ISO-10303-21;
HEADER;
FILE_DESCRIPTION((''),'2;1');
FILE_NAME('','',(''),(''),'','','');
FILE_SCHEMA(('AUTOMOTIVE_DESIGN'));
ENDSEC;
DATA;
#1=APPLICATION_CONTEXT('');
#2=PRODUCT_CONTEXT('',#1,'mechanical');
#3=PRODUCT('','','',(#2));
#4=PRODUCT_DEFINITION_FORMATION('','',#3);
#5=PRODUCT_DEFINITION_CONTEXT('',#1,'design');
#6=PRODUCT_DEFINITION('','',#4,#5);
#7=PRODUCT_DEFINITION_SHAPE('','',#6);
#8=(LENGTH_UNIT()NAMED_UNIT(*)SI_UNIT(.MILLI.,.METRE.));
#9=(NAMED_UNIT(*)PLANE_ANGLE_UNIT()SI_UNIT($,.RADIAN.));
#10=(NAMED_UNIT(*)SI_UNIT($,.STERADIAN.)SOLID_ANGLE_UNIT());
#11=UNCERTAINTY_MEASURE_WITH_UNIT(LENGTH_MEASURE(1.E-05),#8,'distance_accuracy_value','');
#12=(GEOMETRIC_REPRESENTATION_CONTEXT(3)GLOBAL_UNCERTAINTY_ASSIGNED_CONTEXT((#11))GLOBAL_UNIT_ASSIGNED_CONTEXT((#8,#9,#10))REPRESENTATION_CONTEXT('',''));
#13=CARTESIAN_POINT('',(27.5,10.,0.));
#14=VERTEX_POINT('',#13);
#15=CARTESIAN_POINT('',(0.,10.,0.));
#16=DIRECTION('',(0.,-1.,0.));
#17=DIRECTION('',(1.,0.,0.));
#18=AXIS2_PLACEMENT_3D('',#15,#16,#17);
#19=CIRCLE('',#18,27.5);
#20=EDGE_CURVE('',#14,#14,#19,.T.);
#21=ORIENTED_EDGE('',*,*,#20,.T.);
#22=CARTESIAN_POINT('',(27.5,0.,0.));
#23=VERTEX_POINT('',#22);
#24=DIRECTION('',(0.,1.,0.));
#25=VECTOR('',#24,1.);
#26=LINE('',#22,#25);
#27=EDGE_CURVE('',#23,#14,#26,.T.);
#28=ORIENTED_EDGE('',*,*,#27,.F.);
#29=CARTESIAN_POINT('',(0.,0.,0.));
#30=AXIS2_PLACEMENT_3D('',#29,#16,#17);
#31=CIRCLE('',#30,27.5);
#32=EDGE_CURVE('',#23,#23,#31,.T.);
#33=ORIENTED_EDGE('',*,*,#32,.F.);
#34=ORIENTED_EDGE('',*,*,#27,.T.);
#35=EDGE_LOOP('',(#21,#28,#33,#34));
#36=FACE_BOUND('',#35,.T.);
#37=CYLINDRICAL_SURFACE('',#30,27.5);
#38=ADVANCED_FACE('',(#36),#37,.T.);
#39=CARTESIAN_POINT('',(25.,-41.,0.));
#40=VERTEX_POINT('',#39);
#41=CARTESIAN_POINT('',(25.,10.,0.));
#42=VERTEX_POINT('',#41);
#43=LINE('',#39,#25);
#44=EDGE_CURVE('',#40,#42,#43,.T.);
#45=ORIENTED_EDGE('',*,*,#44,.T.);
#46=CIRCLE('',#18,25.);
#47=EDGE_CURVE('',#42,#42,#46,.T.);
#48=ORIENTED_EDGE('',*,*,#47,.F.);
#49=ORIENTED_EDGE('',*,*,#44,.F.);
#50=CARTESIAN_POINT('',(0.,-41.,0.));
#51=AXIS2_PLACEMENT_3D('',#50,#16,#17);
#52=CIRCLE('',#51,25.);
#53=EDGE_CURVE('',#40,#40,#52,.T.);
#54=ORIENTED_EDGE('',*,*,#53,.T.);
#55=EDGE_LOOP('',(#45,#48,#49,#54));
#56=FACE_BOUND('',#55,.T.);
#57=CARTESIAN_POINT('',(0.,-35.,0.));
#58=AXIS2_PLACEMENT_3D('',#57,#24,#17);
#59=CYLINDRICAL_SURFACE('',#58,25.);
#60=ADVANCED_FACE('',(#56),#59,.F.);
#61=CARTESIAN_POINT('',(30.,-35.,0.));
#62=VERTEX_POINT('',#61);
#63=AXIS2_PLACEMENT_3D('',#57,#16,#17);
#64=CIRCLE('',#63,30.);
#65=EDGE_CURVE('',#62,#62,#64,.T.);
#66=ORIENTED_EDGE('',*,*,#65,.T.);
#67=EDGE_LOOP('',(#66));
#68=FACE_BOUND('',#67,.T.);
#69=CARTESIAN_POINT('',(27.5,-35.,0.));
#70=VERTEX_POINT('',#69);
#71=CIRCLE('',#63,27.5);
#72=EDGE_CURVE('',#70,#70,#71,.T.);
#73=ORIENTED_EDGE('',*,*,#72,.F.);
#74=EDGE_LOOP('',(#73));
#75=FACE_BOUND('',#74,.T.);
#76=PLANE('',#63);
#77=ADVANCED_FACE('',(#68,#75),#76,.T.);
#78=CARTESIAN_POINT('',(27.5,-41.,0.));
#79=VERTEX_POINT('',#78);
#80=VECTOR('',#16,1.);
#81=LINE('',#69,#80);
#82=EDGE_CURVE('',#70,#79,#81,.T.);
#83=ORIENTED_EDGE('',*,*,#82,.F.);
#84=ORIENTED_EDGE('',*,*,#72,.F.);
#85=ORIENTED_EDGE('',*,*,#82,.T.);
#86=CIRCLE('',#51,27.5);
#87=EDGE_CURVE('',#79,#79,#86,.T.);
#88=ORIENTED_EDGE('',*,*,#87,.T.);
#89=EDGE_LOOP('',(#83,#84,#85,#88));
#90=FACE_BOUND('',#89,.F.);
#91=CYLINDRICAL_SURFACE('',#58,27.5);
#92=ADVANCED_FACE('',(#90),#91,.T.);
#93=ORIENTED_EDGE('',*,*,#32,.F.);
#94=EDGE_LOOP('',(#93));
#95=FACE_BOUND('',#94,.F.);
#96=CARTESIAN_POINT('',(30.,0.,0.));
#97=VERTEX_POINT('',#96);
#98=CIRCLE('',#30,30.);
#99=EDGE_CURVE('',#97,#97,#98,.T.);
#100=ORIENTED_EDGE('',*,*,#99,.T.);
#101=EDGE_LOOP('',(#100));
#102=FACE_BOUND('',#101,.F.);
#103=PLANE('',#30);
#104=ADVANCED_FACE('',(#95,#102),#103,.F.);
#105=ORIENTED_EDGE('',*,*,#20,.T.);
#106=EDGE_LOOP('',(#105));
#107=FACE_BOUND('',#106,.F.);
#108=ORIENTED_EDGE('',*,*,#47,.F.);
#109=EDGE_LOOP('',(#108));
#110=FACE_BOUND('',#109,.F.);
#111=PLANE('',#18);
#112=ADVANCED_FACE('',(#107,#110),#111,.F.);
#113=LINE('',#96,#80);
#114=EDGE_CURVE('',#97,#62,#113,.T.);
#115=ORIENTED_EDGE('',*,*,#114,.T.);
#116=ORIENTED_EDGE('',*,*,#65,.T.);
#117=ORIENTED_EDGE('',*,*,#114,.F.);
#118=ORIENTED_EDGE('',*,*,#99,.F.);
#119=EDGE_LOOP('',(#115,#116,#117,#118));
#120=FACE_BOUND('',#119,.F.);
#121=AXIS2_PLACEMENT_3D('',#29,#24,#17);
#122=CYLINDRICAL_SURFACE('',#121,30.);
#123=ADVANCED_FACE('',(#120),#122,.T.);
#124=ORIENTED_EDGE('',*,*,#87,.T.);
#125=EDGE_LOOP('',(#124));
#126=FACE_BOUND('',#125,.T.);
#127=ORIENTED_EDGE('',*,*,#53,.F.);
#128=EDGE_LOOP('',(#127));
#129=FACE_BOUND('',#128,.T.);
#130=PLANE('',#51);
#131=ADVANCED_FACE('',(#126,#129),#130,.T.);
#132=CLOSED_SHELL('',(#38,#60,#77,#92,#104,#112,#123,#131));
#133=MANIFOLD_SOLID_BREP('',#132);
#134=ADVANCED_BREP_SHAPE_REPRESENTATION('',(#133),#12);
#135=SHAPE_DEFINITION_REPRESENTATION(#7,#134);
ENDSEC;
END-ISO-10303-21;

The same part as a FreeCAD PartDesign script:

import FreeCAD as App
import Part
import Sketcher

V = App.Vector
Q = App.Units.Quantity

doc = App.newDocument("Part")
body = doc.addObject("PartDesign::Body", "Body")

sketch1 = doc.addObject("Sketcher::SketchObject", "Sketch")
body.addObject(sketch1)
sketch1.AttachmentSupport = (doc.XZ_Plane, [""])
sketch1.MapMode = "FlatFace"
sketch1.addGeometry([
    Part.Circle(V(0, 0, 0), V(0, 0, 1), 30),
    Part.Circle(V(0, 0, 0), V(0, 0, 1), 25),
], False)
sketch1.addConstraint([
    Sketcher.Constraint("Coincident", 0, 3, -1, 1),
    Sketcher.Constraint("Coincident", 1, 3, -1, 1),
    Sketcher.Constraint("Diameter", 0, Q("60 mm")),
    Sketcher.Constraint("Diameter", 1, Q("50 mm")),
])
pad1 = doc.addObject("PartDesign::Pad", "Pad")
body.addObject(pad1)
pad1.Profile = sketch1
pad1.Length = 35

sketch2 = doc.addObject("Sketcher::SketchObject", "Sketch001")
body.addObject(sketch2)
sketch2.AttachmentSupport = (doc.XZ_Plane, [""])
sketch2.MapMode = "FlatFace"
sketch2.addGeometry([
    Part.Circle(V(0, 0, 0), V(0, 0, 1), 28),
    Part.Circle(V(0, 0, 0), V(0, 0, 1), 25),
], False)
sketch2.addConstraint([
    Sketcher.Constraint("Coincident", 0, 3, -1, 1),
    Sketcher.Constraint("Coincident", 1, 3, -1, 1),
    Sketcher.Constraint("Diameter", 0, Q("55 mm")),
    Sketcher.Constraint("Diameter", 1, Q("50 mm")),
])
pad2 = doc.addObject("PartDesign::Pad", "Pad001")
body.addObject(pad2)
pad2.Profile = sketch2
pad2.Length = 10
pad2.Reversed = True

sketch3 = doc.addObject("Sketcher::SketchObject", "Sketch002")
body.addObject(sketch3)
sketch3.AttachmentSupport = (doc.XZ_Plane, [""])
sketch3.MapMode = "FlatFace"
sketch3.AttachmentOffset = App.Placement(V(0, 0, 35), App.Rotation())
sketch3.addGeometry([
    Part.Circle(V(0, 0, 0), V(0, 0, 1), 28),
    Part.Circle(V(0, 0, 0), V(0, 0, 1), 25),
], False)
sketch3.addConstraint([
    Sketcher.Constraint("Coincident", 0, 3, -1, 1),
    Sketcher.Constraint("Coincident", 1, 3, -1, 1),
    Sketcher.Constraint("Diameter", 0, Q("55 mm")),
    Sketcher.Constraint("Diameter", 1, Q("50 mm")),
])
pad3 = doc.addObject("PartDesign::Pad", "Pad002")
body.addObject(pad3)
pad3.Profile = sketch3
pad3.Length = 6

doc.recompute()
